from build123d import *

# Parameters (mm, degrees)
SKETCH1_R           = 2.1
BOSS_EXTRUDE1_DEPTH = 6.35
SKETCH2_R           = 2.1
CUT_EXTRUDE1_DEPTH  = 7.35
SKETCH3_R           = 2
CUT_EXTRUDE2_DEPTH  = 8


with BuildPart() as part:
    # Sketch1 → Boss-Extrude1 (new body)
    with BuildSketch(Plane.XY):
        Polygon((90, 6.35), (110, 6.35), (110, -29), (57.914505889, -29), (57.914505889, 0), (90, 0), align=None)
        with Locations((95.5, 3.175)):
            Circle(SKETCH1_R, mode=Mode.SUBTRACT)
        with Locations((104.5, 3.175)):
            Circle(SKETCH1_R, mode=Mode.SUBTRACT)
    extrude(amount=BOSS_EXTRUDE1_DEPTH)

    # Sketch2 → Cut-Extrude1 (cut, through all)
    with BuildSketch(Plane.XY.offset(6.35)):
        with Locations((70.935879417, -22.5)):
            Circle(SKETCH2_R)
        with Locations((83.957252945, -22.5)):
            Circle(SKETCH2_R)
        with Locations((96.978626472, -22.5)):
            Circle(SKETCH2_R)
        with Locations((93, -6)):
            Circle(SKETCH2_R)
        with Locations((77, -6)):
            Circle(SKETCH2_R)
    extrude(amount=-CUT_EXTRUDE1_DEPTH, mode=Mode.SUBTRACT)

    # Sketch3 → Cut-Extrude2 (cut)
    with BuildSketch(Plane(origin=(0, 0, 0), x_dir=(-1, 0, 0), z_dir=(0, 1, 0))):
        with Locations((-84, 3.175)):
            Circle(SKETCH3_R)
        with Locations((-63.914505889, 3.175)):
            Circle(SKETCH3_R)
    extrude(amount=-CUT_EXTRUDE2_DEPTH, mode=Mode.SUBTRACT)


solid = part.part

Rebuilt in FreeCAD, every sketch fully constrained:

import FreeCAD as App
import Part
import Sketcher

doc = App.newDocument("Part")
body = doc.addObject("PartDesign::Body", "Body")

# Sketch on XY plane
sketch1 = body.newObject("Sketcher::SketchObject", "Sketch")
sketch1.AttachmentSupport = (doc.getObject("XY_Plane"), [""])
sketch1.MapMode = "FlatFace"
sketch1.addGeometry(Part.LineSegment(App.Vector(110, 6.3, 0), App.Vector(90, 6.3, 0)), False)
sketch1.addGeometry(Part.LineSegment(App.Vector(90, 6.3, 0), App.Vector(90, 0, 0)), False)
sketch1.addGeometry(Part.LineSegment(App.Vector(90, 0, 0), App.Vector(57.9, 0, 0)), False)
sketch1.addGeometry(Part.LineSegment(App.Vector(57.9, 0, 0), App.Vector(57.9, -29, 0)), False)
sketch1.addGeometry(Part.LineSegment(App.Vector(57.9, -29, 0), App.Vector(110, -29, 0)), False)
sketch1.addGeometry(Part.LineSegment(App.Vector(110, -29, 0), App.Vector(110, 6.3, 0)), False)
sketch1.addGeometry(Part.Circle(App.Vector(104.5, 3.2, 0), App.Vector(0, 0, 1), 2.1), False)
sketch1.addGeometry(Part.Circle(App.Vector(95.5, 3.2, 0), App.Vector(0, 0, 1), 2.1), False)
sketch1.addConstraint(Sketcher.Constraint("Coincident", 0, 2, 1, 1))
sketch1.addConstraint(Sketcher.Constraint("Coincident", 1, 2, 2, 1))
sketch1.addConstraint(Sketcher.Constraint("Coincident", 2, 2, 3, 1))
sketch1.addConstraint(Sketcher.Constraint("Coincident", 3, 2, 4, 1))
sketch1.addConstraint(Sketcher.Constraint("Coincident", 4, 2, 5, 1))
sketch1.addConstraint(Sketcher.Constraint("Coincident", 5, 2, 0, 1))
sketch1.addConstraint(Sketcher.Constraint("Horizontal", 0))
sketch1.addConstraint(Sketcher.Constraint("Vertical", 1))
sketch1.addConstraint(Sketcher.Constraint("Horizontal", 2))
sketch1.addConstraint(Sketcher.Constraint("Vertical", 3))
sketch1.addConstraint(Sketcher.Constraint("Horizontal", 4))
sketch1.addConstraint(Sketcher.Constraint("Vertical", 5))
sketch1.addConstraint(Sketcher.Constraint("Equal", 6, 7))
sketch1.addConstraint(Sketcher.Constraint("PointOnObject", 1, 2, -1))
sketch1.addConstraint(Sketcher.Constraint("Horizontal", 6, 3, 7, 3))
sketch1.addConstraint(Sketcher.Constraint("Diameter", 6, 4.2))
sketch1.addConstraint(Sketcher.Constraint("DistanceX", 0, 2, 0, 1, 20.0))
sketch1.addConstraint(Sketcher.Constraint("DistanceY", 3, 2, 3, 1, 29.0))
sketch1.addConstraint(Sketcher.Constraint("DistanceX", -1, 1, 0, 2, 90.0))
sketch1.addConstraint(Sketcher.Constraint("DistanceX", 7, 3, 6, 3, 9.0))
sketch1.addConstraint(Sketcher.Constraint("DistanceY", 1, 2, 1, 1, 6.35))
sketch1.addConstraint(Sketcher.Constraint("DistanceX", -1, 1, 6, 3, 104.5))
sketch1.addConstraint(Sketcher.Constraint("DistanceY", -1, 1, 6, 3, 3.175))
sketch1.addConstraint(Sketcher.Constraint("DistanceX", 2, 2, 2, 1, 32.085494))
pad1 = body.newObject("PartDesign::Pad", "Pad")
pad1.Profile = sketch1
pad1.Length = 6.35

# Sketch on XY plane
sketch2 = body.newObject("Sketcher::SketchObject", "Sketch001")
sketch2.AttachmentSupport = (doc.getObject("XY_Plane"), [""])
sketch2.MapMode = "FlatFace"
sketch2.AttachmentOffset = App.Placement(App.Vector(0, 0, 6.35), App.Rotation())
sketch2.addGeometry(Part.Circle(App.Vector(70.9, -22.5, 0), App.Vector(0, 0, 1), 2.1), False)
sketch2.addGeometry(Part.Circle(App.Vector(84, -22.5, 0), App.Vector(0, 0, 1), 2.1), False)
sketch2.addGeometry(Part.Circle(App.Vector(97, -22.5, 0), App.Vector(0, 0, 1), 2.1), False)
sketch2.addGeometry(Part.Circle(App.Vector(93, -6, 0), App.Vector(0, 0, 1), 2.1), False)
sketch2.addGeometry(Part.Circle(App.Vector(77, -6, 0), App.Vector(0, 0, 1), 2.1), False)
sketch2.addConstraint(Sketcher.Constraint("Equal", 0, 1))
sketch2.addConstraint(Sketcher.Constraint("Equal", 1, 2))
sketch2.addConstraint(Sketcher.Constraint("Equal", 2, 3))
sketch2.addConstraint(Sketcher.Constraint("Equal", 3, 4))
sketch2.addConstraint(Sketcher.Constraint("Horizontal", 0, 3, 1, 3))
sketch2.addConstraint(Sketcher.Constraint("Horizontal", 1, 3, 2, 3))
sketch2.addConstraint(Sketcher.Constraint("Horizontal", 3, 3, 4, 3))
sketch2.addConstraint(Sketcher.Constraint("Diameter", 0, 4.2))
sketch2.addConstraint(Sketcher.Constraint("DistanceX", -1, 1, 3, 3, 93.0))
sketch2.addConstraint(Sketcher.Constraint("DistanceY", 3, 3, -1, 1, 6.0))
sketch2.addConstraint(Sketcher.Constraint("DistanceX", -1, 1, 4, 3, 77.0))
sketch2.addConstraint(Sketcher.Constraint("DistanceY", 0, 3, -1, 1, 22.5))
sketch2.addConstraint(Sketcher.Constraint("DistanceX", -1, 1, 0, 3, 70.935879))
sketch2.addConstraint(Sketcher.Constraint("DistanceX", -1, 1, 1, 3, 83.957253))
sketch2.addConstraint(Sketcher.Constraint("DistanceX", -1, 1, 2, 3, 96.978626))
pocket1 = body.newObject("PartDesign::Pocket", "Pocket")
pocket1.Profile = sketch2
pocket1.Type = "ThroughAll"

# Sketch on XZ plane
sketch3 = body.newObject("Sketcher::SketchObject", "Sketch002")
sketch3.AttachmentSupport = (doc.getObject("XZ_Plane"), [""])
sketch3.MapMode = "FlatFace"
sketch3.addGeometry(Part.Circle(App.Vector(84, 3.2, 0), App.Vector(0, 0, 1), 2), False)
sketch3.addGeometry(Part.Circle(App.Vector(63.9, 3.2, 0), App.Vector(0, 0, 1), 2), False)
sketch3.addConstraint(Sketcher.Constraint("Equal", 0, 1))
sketch3.addConstraint(Sketcher.Constraint("Horizontal", 0, 3, 1, 3))
sketch3.addConstraint(Sketcher.Constraint("Diameter", 0, 4.0))
sketch3.addConstraint(Sketcher.Constraint("DistanceX", -1, 1, 0, 3, 84.0))
sketch3.addConstraint(Sketcher.Constraint("DistanceY", -1, 1, 0, 3, 3.175))
sketch3.addConstraint(Sketcher.Constraint("DistanceX", -1, 1, 1, 3, 63.914506))
pocket2 = body.newObject("PartDesign::Pocket", "Pocket001")
pocket2.Profile = sketch3
pocket2.Length = 8
pocket2.Reversed = True

doc.recompute()
